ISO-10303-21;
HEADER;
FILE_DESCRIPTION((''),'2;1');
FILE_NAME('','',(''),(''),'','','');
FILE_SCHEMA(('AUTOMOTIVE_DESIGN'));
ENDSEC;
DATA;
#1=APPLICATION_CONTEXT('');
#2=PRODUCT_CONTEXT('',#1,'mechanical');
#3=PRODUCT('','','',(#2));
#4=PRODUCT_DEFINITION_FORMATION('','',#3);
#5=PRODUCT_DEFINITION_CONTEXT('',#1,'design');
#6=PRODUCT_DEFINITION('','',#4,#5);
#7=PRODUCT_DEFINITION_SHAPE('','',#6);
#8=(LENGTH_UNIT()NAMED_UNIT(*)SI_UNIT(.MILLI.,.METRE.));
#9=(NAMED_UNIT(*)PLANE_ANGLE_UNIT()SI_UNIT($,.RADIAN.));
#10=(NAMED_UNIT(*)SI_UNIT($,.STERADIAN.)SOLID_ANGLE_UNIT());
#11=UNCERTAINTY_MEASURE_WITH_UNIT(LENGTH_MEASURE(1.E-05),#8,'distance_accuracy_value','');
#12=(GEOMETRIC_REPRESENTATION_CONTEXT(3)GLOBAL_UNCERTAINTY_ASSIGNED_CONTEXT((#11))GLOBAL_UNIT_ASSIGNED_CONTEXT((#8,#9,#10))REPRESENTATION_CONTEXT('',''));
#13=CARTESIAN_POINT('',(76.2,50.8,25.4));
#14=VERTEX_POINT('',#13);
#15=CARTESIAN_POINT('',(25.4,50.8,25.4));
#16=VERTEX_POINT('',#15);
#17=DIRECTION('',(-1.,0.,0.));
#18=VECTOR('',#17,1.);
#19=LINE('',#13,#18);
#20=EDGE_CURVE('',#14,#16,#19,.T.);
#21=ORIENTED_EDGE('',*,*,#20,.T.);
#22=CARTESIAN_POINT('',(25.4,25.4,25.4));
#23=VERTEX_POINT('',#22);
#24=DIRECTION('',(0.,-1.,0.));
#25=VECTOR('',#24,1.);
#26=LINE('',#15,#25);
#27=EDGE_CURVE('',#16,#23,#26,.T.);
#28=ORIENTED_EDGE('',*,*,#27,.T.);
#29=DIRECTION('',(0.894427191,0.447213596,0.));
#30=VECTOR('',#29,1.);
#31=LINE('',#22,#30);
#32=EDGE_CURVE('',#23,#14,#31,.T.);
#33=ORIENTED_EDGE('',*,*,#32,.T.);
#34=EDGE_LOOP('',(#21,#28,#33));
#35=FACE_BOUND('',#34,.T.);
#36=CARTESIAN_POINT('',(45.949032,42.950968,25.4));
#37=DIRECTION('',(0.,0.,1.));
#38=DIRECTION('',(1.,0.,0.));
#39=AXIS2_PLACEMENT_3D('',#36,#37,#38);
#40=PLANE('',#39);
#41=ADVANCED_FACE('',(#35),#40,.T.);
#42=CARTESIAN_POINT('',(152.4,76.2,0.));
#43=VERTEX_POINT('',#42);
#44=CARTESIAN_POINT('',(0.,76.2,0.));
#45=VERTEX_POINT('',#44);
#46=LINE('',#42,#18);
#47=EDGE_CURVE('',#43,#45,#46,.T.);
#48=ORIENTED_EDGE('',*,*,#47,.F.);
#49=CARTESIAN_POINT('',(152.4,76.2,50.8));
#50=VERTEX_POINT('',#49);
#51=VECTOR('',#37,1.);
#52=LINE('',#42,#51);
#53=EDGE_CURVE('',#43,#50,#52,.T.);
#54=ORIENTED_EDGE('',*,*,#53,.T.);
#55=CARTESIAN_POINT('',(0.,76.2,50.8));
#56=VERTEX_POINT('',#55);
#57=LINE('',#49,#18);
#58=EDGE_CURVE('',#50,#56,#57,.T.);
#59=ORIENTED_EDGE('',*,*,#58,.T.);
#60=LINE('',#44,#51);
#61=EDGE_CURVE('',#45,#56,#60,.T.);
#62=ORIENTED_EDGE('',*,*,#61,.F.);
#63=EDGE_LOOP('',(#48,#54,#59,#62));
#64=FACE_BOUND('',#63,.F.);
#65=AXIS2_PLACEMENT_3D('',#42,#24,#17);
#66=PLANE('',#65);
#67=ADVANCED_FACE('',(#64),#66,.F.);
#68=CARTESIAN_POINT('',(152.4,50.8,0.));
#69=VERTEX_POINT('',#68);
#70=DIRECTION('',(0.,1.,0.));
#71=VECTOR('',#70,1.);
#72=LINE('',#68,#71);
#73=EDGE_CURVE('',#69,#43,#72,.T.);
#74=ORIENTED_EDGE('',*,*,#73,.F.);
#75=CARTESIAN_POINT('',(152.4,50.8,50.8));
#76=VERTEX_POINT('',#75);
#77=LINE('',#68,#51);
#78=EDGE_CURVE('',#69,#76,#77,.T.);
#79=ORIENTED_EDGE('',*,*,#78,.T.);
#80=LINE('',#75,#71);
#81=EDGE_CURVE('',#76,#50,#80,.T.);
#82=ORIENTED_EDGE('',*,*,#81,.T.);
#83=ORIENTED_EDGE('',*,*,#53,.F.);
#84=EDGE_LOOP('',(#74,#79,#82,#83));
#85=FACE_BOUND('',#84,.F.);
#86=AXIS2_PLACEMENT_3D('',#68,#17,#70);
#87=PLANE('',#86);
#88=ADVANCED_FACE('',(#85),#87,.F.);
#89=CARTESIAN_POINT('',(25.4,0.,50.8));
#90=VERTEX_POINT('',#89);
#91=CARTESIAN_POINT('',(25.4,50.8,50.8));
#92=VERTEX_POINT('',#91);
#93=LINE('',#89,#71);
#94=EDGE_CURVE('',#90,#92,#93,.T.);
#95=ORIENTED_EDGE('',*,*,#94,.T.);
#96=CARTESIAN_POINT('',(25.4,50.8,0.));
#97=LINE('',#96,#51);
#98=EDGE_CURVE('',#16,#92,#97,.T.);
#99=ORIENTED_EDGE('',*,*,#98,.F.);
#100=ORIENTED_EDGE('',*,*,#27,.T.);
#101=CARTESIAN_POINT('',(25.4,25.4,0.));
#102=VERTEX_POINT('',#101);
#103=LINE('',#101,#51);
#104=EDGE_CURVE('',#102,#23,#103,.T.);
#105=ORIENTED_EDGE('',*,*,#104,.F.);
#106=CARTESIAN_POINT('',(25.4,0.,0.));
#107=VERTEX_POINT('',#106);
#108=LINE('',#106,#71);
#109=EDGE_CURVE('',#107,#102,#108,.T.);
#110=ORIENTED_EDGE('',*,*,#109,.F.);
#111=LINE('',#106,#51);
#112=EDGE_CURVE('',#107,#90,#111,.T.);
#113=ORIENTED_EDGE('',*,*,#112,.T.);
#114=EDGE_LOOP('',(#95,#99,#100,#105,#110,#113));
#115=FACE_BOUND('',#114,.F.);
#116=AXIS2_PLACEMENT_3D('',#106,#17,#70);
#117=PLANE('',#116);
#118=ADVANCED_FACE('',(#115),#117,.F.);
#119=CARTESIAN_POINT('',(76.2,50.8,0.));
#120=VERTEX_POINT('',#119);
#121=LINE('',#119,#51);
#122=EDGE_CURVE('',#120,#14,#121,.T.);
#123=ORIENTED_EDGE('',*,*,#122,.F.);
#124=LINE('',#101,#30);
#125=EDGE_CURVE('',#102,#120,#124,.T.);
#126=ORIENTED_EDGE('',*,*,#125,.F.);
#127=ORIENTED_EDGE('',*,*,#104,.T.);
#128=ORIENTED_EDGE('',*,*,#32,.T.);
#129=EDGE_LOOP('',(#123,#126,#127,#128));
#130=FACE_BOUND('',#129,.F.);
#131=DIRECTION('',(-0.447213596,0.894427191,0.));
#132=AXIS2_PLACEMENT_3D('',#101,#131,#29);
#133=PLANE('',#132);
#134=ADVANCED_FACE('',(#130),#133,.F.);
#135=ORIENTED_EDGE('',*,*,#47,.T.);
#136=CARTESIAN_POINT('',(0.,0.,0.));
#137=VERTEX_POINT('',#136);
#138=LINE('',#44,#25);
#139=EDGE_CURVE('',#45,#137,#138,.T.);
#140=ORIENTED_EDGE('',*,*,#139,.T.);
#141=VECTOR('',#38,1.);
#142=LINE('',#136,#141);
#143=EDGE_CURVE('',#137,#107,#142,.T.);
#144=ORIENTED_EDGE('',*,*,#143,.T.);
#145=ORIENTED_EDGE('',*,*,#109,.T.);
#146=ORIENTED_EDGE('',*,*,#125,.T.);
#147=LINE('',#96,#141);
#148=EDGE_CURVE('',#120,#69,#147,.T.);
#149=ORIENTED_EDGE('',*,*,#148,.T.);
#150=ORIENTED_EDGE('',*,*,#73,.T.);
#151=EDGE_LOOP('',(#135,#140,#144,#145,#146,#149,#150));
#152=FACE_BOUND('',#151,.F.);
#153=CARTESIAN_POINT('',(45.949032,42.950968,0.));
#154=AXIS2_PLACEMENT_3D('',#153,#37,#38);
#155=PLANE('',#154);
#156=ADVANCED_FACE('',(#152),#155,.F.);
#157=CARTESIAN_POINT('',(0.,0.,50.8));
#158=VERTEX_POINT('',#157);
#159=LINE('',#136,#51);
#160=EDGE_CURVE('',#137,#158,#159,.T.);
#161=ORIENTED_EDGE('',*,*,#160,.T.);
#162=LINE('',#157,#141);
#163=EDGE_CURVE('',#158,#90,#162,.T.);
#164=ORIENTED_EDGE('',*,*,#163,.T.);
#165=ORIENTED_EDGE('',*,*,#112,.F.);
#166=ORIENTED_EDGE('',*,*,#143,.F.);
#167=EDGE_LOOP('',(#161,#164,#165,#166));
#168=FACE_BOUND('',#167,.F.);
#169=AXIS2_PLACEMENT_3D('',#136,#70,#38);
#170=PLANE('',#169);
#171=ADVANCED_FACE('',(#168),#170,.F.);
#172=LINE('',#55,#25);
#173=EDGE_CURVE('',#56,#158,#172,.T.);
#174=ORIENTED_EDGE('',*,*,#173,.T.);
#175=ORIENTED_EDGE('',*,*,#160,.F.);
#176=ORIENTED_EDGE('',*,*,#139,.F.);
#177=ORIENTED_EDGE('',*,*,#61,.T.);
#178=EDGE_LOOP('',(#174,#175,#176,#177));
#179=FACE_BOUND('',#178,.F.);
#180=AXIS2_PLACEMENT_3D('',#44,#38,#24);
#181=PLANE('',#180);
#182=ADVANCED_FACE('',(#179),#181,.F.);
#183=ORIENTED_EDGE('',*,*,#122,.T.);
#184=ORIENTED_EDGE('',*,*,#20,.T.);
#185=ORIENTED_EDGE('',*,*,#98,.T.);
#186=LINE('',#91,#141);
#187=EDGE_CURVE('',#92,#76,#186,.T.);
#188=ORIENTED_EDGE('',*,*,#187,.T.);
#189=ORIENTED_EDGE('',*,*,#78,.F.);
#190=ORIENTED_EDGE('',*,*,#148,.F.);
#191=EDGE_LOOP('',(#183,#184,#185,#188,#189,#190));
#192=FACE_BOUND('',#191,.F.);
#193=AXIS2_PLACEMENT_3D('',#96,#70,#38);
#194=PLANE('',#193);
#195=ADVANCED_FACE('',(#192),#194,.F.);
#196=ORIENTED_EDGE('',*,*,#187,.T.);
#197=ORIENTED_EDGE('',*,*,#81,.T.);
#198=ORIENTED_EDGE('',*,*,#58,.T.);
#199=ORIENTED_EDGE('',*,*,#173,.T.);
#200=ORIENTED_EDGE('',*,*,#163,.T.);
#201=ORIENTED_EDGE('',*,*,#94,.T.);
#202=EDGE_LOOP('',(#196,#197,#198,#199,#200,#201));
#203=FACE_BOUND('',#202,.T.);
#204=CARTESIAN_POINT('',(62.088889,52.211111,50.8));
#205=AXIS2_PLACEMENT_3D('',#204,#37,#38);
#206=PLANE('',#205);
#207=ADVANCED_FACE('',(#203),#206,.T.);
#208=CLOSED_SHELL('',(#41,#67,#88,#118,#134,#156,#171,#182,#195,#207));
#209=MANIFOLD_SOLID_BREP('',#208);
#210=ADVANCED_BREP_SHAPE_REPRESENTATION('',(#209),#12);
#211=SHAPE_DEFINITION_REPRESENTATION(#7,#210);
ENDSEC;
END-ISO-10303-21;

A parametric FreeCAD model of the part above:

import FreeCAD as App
import Part
import Sketcher
Q = App.Units.Quantity

doc = App.newDocument("Part")
params = doc.addObject("Spreadsheet::Sheet", "Params")
for row, (alias, value) in enumerate([
    ("sketch1_width", "1 in"),
    ("sketch1_width2", "5 in"),
    ("sketch1_height", "3 in"),
    ("pad1_length", "2 in"),
    ("sketch2_width", "2 in"),
    ("sketch2_height", "1 in"),
    ("pad2_length", "1 in"),
], start=1):
    params.set(f"A{row}", alias)
    params.set(f"B{row}", "=" + value)
    params.setAlias(f"B{row}", alias)

body = doc.addObject("PartDesign::Body", "Body")

sketch1 = body.newObject("Sketcher::SketchObject", "Sketch")
sketch1.AttachmentSupport = (doc.getObject("XY_Plane"), [""])
sketch1.MapMode = "FlatFace"
sketch1.addGeometry([
    Part.LineSegment(App.Vector(0, 76, 0), App.Vector(0, 0, 0)),
    Part.LineSegment(App.Vector(0, 0, 0), App.Vector(25, 0, 0)),
    Part.LineSegment(App.Vector(25, 0, 0), App.Vector(25, 51, 0)),
    Part.LineSegment(App.Vector(25, 51, 0), App.Vector(152, 51, 0)),
    Part.LineSegment(App.Vector(152, 51, 0), App.Vector(152, 76, 0)),
    Part.LineSegment(App.Vector(152, 76, 0), App.Vector(0, 76, 0)),
], False)
sketch1.addConstraint([
    Sketcher.Constraint("Coincident", 0, 2, 1, 1),
    Sketcher.Constraint("Coincident", 1, 2, 2, 1),
    Sketcher.Constraint("Coincident", 2, 2, 3, 1),
    Sketcher.Constraint("Coincident", 3, 2, 4, 1),
    Sketcher.Constraint("Coincident", 4, 2, 5, 1),
    Sketcher.Constraint("Coincident", 5, 2, 0, 1),
    Sketcher.Constraint("Vertical", 0),
    Sketcher.Constraint("Horizontal", 1),
    Sketcher.Constraint("Vertical", 2),
    Sketcher.Constraint("Horizontal", 3),
    Sketcher.Constraint("Vertical", 4),
    Sketcher.Constraint("Horizontal", 5),
    Sketcher.Constraint("Coincident", 0, 2, -1, 1),
    Sketcher.Constraint("Equal", 1, 4),
    Sketcher.Constraint("DistanceX", 1, 1, 1, 2, Q("1 in")),
    Sketcher.Constraint("DistanceX", 3, 1, 3, 2, Q("5 in")),
    Sketcher.Constraint("DistanceY", 0, 2, 0, 1, Q("3 in")),
])
sketch1.setExpression("Constraints[14]", "Params.sketch1_width")
sketch1.setExpression("Constraints[15]", "Params.sketch1_width2")
sketch1.setExpression("Constraints[16]", "Params.sketch1_height")
pad1 = body.newObject("PartDesign::Pad", "Pad")
pad1.Profile = sketch1
pad1.setExpression("Length", "Params.pad1_length")

sketch2 = body.newObject("Sketcher::SketchObject", "Sketch001")
sketch2.AttachmentSupport = (doc.getObject("XY_Plane"), [""])
sketch2.MapMode = "FlatFace"
sketch2.addGeometry([
    Part.LineSegment(App.Vector(76, 51, 0), App.Vector(25, 51, 0)),
    Part.LineSegment(App.Vector(25, 51, 0), App.Vector(25, 25, 0)),
    Part.LineSegment(App.Vector(25, 25, 0), App.Vector(76, 51, 0)),
], False)
sketch2.addConstraint([
    Sketcher.Constraint("Coincident", 0, 2, 1, 1),
    Sketcher.Constraint("Coincident", 1, 2, 2, 1),
    Sketcher.Constraint("Coincident", 2, 2, 0, 1),
    Sketcher.Constraint("Horizontal", 0),
    Sketcher.Constraint("Vertical", 1),
    Sketcher.Constraint("DistanceX", 0, 2, 0, 1, Q("2 in")),
    Sketcher.Constraint("DistanceY", 1, 2, 1, 1, Q("1 in")),
    Sketcher.Constraint("DistanceX", -1, 1, 0, 2, Q("1 in")),
    Sketcher.Constraint("DistanceY", -1, 1, 0, 2, Q("2 in")),
])
sketch2.setExpression("Constraints[5]", "Params.sketch2_width")
sketch2.setExpression("Constraints[6]", "Params.sketch2_height")
pad2 = body.newObject("PartDesign::Pad", "Pad001")
pad2.Profile = sketch2
pad2.setExpression("Length", "Params.pad2_length")

doc.recompute()
